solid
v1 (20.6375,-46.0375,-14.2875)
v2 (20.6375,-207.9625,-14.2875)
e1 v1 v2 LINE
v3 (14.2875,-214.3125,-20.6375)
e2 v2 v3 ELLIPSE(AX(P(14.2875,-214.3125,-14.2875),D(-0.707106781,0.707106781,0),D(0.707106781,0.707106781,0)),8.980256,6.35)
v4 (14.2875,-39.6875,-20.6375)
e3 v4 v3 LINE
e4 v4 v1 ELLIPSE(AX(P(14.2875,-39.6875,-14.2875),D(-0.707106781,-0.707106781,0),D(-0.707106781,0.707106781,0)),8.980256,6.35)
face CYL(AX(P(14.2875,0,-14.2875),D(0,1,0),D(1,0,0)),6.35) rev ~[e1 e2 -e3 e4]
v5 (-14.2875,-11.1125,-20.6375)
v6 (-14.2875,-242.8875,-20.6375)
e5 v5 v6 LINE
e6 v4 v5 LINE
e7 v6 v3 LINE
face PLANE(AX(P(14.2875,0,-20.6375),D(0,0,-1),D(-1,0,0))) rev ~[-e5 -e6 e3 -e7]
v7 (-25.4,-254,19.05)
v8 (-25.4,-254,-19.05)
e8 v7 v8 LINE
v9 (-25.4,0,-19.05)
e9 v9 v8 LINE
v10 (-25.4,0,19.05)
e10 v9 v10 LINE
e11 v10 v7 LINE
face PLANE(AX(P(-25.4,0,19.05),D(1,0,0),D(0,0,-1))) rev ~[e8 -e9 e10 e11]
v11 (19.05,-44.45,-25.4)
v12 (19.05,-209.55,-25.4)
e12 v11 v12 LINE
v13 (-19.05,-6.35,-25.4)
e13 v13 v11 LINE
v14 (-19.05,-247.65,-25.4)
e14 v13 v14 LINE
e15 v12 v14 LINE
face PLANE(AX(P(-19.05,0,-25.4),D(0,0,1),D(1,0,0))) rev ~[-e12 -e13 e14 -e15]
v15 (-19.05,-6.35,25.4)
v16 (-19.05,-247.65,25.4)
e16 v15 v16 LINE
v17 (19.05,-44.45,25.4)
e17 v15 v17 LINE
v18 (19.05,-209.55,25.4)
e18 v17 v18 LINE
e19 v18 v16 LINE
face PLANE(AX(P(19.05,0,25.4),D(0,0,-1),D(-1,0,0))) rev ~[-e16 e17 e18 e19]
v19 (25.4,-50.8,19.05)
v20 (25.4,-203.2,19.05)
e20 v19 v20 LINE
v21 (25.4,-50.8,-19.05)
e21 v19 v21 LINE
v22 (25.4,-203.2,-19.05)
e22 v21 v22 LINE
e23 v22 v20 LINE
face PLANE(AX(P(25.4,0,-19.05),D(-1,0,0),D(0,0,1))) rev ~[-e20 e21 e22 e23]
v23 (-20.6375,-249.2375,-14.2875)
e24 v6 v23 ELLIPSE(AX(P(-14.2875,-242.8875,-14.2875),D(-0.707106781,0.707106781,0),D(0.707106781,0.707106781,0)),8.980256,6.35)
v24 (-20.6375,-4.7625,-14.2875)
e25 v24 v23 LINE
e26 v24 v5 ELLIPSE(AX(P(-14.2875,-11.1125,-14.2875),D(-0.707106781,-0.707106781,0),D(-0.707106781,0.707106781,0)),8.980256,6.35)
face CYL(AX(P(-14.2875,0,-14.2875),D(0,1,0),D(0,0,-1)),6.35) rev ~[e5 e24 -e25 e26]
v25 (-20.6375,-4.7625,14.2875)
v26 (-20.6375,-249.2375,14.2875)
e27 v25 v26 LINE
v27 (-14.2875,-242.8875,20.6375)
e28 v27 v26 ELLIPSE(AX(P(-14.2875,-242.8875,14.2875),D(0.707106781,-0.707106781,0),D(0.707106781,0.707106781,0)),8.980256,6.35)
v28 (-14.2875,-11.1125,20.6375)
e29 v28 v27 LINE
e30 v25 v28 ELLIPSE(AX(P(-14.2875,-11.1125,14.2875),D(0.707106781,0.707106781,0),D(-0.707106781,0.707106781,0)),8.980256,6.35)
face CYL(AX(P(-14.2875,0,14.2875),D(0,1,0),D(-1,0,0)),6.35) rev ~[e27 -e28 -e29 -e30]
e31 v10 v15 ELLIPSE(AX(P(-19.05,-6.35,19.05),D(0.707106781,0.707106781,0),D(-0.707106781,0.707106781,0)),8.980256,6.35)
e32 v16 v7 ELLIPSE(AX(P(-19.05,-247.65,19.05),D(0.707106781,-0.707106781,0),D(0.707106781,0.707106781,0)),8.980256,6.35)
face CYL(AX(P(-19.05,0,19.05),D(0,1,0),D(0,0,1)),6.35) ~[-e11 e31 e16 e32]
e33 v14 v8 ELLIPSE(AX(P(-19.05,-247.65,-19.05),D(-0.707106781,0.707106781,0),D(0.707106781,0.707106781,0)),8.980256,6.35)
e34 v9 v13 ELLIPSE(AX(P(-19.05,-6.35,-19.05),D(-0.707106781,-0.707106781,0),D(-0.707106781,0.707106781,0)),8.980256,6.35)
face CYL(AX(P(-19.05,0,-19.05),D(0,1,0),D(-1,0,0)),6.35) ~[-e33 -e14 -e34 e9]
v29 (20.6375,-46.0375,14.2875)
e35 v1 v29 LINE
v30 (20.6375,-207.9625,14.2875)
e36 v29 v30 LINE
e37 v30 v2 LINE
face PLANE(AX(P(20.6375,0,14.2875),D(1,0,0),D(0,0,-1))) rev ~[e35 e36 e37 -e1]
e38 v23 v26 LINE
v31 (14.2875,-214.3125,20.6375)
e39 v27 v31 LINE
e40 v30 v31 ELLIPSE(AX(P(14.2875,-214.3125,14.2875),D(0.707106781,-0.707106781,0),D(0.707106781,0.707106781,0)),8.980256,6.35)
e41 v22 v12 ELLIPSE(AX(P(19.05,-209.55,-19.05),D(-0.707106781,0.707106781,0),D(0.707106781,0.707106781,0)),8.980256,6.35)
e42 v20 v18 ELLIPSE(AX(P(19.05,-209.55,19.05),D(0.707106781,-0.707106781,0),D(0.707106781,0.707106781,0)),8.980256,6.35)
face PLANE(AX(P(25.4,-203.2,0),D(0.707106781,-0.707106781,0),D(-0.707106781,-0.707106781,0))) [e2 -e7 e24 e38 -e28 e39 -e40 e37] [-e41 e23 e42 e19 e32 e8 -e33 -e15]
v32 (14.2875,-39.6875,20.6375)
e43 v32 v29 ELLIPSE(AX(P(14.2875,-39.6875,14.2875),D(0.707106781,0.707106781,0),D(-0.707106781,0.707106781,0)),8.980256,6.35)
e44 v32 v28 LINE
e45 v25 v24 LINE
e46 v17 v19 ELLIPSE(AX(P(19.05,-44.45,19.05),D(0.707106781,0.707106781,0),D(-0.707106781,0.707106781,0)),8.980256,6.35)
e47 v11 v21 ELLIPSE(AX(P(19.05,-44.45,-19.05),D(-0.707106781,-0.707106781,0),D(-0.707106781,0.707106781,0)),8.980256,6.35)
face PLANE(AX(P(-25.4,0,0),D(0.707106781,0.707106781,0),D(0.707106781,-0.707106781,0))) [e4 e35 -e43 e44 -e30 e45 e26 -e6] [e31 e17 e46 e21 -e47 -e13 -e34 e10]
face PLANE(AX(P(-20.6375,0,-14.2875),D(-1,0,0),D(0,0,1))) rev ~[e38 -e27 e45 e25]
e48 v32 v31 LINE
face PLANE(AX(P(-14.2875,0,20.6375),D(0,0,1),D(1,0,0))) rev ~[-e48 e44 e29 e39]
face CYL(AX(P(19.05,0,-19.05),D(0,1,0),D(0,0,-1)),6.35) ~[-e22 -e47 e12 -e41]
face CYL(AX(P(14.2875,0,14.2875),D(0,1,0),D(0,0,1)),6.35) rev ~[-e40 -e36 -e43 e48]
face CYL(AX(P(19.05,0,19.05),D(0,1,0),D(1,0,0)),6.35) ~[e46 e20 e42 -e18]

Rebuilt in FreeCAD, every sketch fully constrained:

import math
import FreeCAD as App
import Part
import Sketcher
Q = App.Units.Quantity


def add_polygon(sketch, points):
    """Adds a closed chain of lines whose ends are joined by coincident constraints."""
    first, n = sketch.GeometryCount, len(points)
    for a, b in zip(points, points[1:] + points[:1]):
        sketch.addGeometry(Part.LineSegment(App.Vector(*a, 0), App.Vector(*b, 0)), False)
    for i in range(n):
        sketch.addConstraint(Sketcher.Constraint("Coincident", first + i, 2, first + (i + 1) % n, 1))

doc = App.newDocument("Part")
body = doc.addObject("PartDesign::Body", "Body")

# Sketch on XZ plane
sketch1 = body.newObject("Sketcher::SketchObject", "Sketch")
sketch1.AttachmentSupport = (doc.getObject("XZ_Plane"), [""])
sketch1.MapMode = "FlatFace"
sketch1.addGeometry([
    Part.ArcOfCircle(Part.Circle(App.Vector(19, 19, 0), App.Vector(0, 0, 1), 6), math.radians(0), math.radians(90)),  # 0
    Part.LineSegment(App.Vector(19, 25, 0), App.Vector(-19, 25, 0)),  # 1
    Part.ArcOfCircle(Part.Circle(App.Vector(-19, 19, 0), App.Vector(0, 0, 1), 6), math.radians(90), math.radians(180)),  # 2
    Part.LineSegment(App.Vector(-25, 19, 0), App.Vector(-25, -19, 0)),  # 3
    Part.ArcOfCircle(Part.Circle(App.Vector(-19, -19, 0), App.Vector(0, 0, 1), 6), math.radians(180), math.radians(270)),  # 4
    Part.LineSegment(App.Vector(-19, -25, 0), App.Vector(19, -25, 0)),  # 5
    Part.ArcOfCircle(Part.Circle(App.Vector(19, -19, 0), App.Vector(0, 0, 1), 6), math.radians(-90), math.radians(0)),  # 6
    Part.LineSegment(App.Vector(25, -19, 0), App.Vector(25, 19, 0)),  # 7
    Part.ArcOfCircle(Part.Circle(App.Vector(-14, 14, 0), App.Vector(0, 0, 1), 6), math.radians(90), math.radians(180)),  # 8
    Part.LineSegment(App.Vector(-14, 21, 0), App.Vector(14, 21, 0)),  # 9
    Part.ArcOfCircle(Part.Circle(App.Vector(14, 14, 0), App.Vector(0, 0, 1), 6), math.radians(0), math.radians(90)),  # 10
    Part.LineSegment(App.Vector(21, 14, 0), App.Vector(21, -14, 0)),  # 11
    Part.ArcOfCircle(Part.Circle(App.Vector(14, -14, 0), App.Vector(0, 0, 1), 6), math.radians(-90), math.radians(0)),  # 12
    Part.LineSegment(App.Vector(14, -21, 0), App.Vector(-14, -21, 0)),  # 13
    Part.ArcOfCircle(Part.Circle(App.Vector(-14, -14, 0), App.Vector(0, 0, 1), 6), math.radians(180), math.radians(270)),  # 14
    Part.LineSegment(App.Vector(-21, -14, 0), App.Vector(-21, 14, 0)),  # 15
], False)
sketch1.addConstraint([
    Sketcher.Constraint("Tangent", 0, 2, 1, 1),
    Sketcher.Constraint("Tangent", 1, 2, 2, 1),
    Sketcher.Constraint("Tangent", 2, 2, 3, 1),
    Sketcher.Constraint("Tangent", 3, 2, 4, 1),
    Sketcher.Constraint("Tangent", 4, 2, 5, 1),
    Sketcher.Constraint("Tangent", 5, 2, 6, 1),
    Sketcher.Constraint("Tangent", 6, 2, 7, 1),
    Sketcher.Constraint("Tangent", 7, 2, 0, 1),
    Sketcher.Constraint("Tangent", 8, 1, 9, 1),
    Sketcher.Constraint("Tangent", 9, 2, 10, 2),
    Sketcher.Constraint("Tangent", 10, 1, 11, 1),
    Sketcher.Constraint("Tangent", 11, 2, 12, 2),
    Sketcher.Constraint("Tangent", 12, 1, 13, 1),
    Sketcher.Constraint("Tangent", 13, 2, 14, 2),
    Sketcher.Constraint("Tangent", 14, 1, 15, 1),
    Sketcher.Constraint("Tangent", 15, 2, 8, 2),
    Sketcher.Constraint("Horizontal", 1),
    Sketcher.Constraint("Vertical", 3),
    Sketcher.Constraint("Horizontal", 5),
    Sketcher.Constraint("Vertical", 7),
    Sketcher.Constraint("Horizontal", 9),
    Sketcher.Constraint("Vertical", 11),
    Sketcher.Constraint("Horizontal", 13),
    Sketcher.Constraint("Vertical", 15),
    Sketcher.Constraint("Equal", 0, 2),
    Sketcher.Constraint("Equal", 2, 4),
    Sketcher.Constraint("Equal", 4, 6),
    Sketcher.Constraint("Equal", 6, 8),
    Sketcher.Constraint("Equal", 8, 10),
    Sketcher.Constraint("Equal", 10, 12),
    Sketcher.Constraint("Equal", 12, 14),
    Sketcher.Constraint("Symmetric", 0, 3, 4, 3, -1, 1),
    Sketcher.Constraint("Symmetric", 8, 3, 12, 3, -1, 1),
    Sketcher.Constraint("Equal", 5, 3),
    Sketcher.Constraint("Equal", 13, 11),
    Sketcher.Constraint("Radius", 0, Q("0.25 in")),
    Sketcher.Constraint("DistanceX", 1, 2, 1, 1, Q("1.5 in")),
    Sketcher.Constraint("DistanceX", 9, 1, 9, 2, Q("1.125 in")),
])
pad1 = body.newObject("PartDesign::Pad", "Pad")
pad1.Profile = sketch1
pad1.Length = Q("10 in")

# Sketch on XY plane
sketch2 = body.newObject("Sketcher::SketchObject", "Sketch001")
sketch2.AttachmentSupport = (doc.getObject("XY_Plane"), [""])
sketch2.MapMode = "FlatFace"
add_polygon(sketch2, [(25, -51), (25, 0), (-25, 0)])  # lines 0-2
add_polygon(sketch2, [(-25, -254), (25, -254), (25, -203)])  # lines 3-5
sketch2.addConstraint([
    Sketcher.Constraint("Vertical", 0),
    Sketcher.Constraint("Horizontal", 1),
    Sketcher.Constraint("Horizontal", 3),
    Sketcher.Constraint("Vertical", 4),
    Sketcher.Constraint("Symmetric", 0, 2, 1, 2, -1, 1),
    Sketcher.Constraint("Perpendicular", 2, 5),
    Sketcher.Constraint("Vertical", 2, 2, 3, 2),
    Sketcher.Constraint("Vertical", 1, 2, 5, 2),
    Sketcher.Constraint("Equal", 3, 0),
    Sketcher.Constraint("DistanceX", 1, 2, 1, 1, Q("2 in")),
    Sketcher.Constraint("DistanceY", 3, 2, -1, 1, Q("10 in")),
])
pocket1 = body.newObject("PartDesign::Pocket", "Pocket")
pocket1.Profile = sketch2
pocket1.Type = "ThroughAll"
pocket1.Midplane = True

doc.recompute()
